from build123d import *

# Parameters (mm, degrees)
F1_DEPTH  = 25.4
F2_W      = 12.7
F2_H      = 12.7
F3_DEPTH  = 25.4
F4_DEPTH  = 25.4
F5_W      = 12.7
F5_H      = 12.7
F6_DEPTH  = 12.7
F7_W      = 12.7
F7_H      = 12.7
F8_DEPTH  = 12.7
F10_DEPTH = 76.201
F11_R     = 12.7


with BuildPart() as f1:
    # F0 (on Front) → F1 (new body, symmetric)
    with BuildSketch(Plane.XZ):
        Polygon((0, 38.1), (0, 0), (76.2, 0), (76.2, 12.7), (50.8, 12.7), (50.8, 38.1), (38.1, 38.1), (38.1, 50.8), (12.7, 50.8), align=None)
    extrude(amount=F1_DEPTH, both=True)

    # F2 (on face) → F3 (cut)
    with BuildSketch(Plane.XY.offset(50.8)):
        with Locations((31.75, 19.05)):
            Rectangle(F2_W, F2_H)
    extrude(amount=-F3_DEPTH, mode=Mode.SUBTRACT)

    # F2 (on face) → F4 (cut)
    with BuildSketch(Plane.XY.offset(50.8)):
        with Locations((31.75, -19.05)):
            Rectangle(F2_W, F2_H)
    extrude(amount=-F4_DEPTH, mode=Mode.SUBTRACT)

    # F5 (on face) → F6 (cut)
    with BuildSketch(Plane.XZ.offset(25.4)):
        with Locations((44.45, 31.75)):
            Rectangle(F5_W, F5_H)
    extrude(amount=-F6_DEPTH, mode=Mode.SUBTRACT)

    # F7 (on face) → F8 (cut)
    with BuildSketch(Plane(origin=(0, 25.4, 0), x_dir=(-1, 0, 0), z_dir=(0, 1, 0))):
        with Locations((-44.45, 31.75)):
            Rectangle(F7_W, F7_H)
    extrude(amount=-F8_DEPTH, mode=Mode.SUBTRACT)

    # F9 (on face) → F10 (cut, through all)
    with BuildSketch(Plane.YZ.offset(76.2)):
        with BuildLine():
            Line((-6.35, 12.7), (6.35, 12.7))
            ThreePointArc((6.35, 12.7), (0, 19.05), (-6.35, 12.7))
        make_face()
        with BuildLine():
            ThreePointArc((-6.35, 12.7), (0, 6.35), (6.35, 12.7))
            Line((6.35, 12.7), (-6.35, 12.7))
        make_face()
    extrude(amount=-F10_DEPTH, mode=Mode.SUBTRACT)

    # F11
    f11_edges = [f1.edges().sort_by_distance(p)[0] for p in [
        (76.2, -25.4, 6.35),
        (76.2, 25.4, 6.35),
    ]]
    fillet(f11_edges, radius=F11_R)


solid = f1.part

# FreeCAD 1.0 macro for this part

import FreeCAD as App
import Part
import Sketcher
from FreeCAD import Vector
Q = App.Units.Quantity


def edges_at(feature, points):
    """Names of the edges that pass closest to the given points."""
    edges = feature.Shape.Edges
    near = lambda p: min(range(len(edges)), key=lambda i: edges[i].distToShape(Part.Vertex(*p))[0])
    return sorted({f"Edge{near(p) + 1}" for p in points})


def add_polygon(sketch, points):
    """Adds a closed chain of lines whose ends are joined by coincident constraints."""
    first, n = sketch.GeometryCount, len(points)
    for a, b in zip(points, points[1:] + points[:1]):
        sketch.addGeometry(Part.LineSegment(App.Vector(*a, 0), App.Vector(*b, 0)), False)
    for i in range(n):
        sketch.addConstraint(Sketcher.Constraint("Coincident", first + i, 2, first + (i + 1) % n, 1))

doc = App.newDocument("Part")
body = doc.addObject("PartDesign::Body", "Body")

# Sketch on XZ plane
sketch1 = body.newObject("Sketcher::SketchObject", "Sketch")
sketch1.AttachmentSupport = (doc.getObject("XZ_Plane"), [""])
sketch1.MapMode = "FlatFace"
add_polygon(sketch1, [(0, 38), (0, 0), (76, 0), (76, 13), (51, 13), (51, 38), (38, 38), (38, 51), (13, 51)])  # lines 0-8
sketch1.addConstraint([
    Sketcher.Constraint("Vertical", 0),
    Sketcher.Constraint("Horizontal", 1),
    Sketcher.Constraint("Vertical", 2),
    Sketcher.Constraint("Horizontal", 3),
    Sketcher.Constraint("Vertical", 4),
    Sketcher.Constraint("Horizontal", 5),
    Sketcher.Constraint("Vertical", 6),
    Sketcher.Constraint("Horizontal", 7),
    Sketcher.Constraint("Coincident", 0, 2, -1, 1),
    Sketcher.Constraint("Horizontal", 5, 2, 8, 2),
    Sketcher.Constraint("Equal", 3, 7),
    Sketcher.Constraint("Equal", 5, 2),
    Sketcher.Constraint("Equal", 7, 4),
    Sketcher.Constraint("Equal", 2, 6),
    Sketcher.Constraint("DistanceX", 1, 1, 1, 2, Q("3 in")),
    Sketcher.Constraint("DistanceX", 3, 2, 3, 1, Q("1 in")),
    Sketcher.Constraint("DistanceX", 5, 2, 5, 1, Q("0.5 in")),
])
pad1 = body.newObject("PartDesign::Pad", "Pad")
pad1.Profile = sketch1
pad1.Length = Q("2 in")
pad1.Midplane = True

# Sketch on XY plane
sketch2 = body.newObject("Sketcher::SketchObject", "Sketch001")
sketch2.AttachmentSupport = (doc.getObject("XY_Plane"), [""])
sketch2.MapMode = "FlatFace"
sketch2.AttachmentOffset = App.Placement(Vector(0, 0, 2 * 25.4), App.Rotation())
add_polygon(sketch2, [(25, 25), (25, 13), (38, 13), (38, 25)])  # lines 0-3
sketch2.addConstraint([
    Sketcher.Constraint("Vertical", 0),
    Sketcher.Constraint("Horizontal", 1),
    Sketcher.Constraint("Vertical", 2),
    Sketcher.Constraint("Horizontal", 3),
    Sketcher.Constraint("Equal", 3, 0),
    Sketcher.Constraint("DistanceX", 1, 1, 1, 2, Q("0.5 in")),
    Sketcher.Constraint("DistanceX", -1, 1, 0, 2, Q("1 in")),
    Sketcher.Constraint("DistanceY", -1, 1, 2, 2, Q("1 in")),
])
pocket1 = body.newObject("PartDesign::Pocket", "Pocket")
pocket1.Profile = sketch2
pocket1.Length = Q("1 in")

# Sketch on XY plane
sketch3 = body.newObject("Sketcher::SketchObject", "Sketch002")
sketch3.AttachmentSupport = (doc.getObject("XY_Plane"), [""])
sketch3.MapMode = "FlatFace"
sketch3.AttachmentOffset = App.Placement(Vector(0, 0, 2 * 25.4), App.Rotation())
add_polygon(sketch3, [(25, -13), (25, -25), (38, -25), (38, -13)])  # lines 0-3
sketch3.addConstraint([
    Sketcher.Constraint("Vertical", 0),
    Sketcher.Constraint("Horizontal", 1),
    Sketcher.Constraint("Vertical", 2),
    Sketcher.Constraint("Horizontal", 3),
    Sketcher.Constraint("Equal", 3, 0),
    Sketcher.Constraint("DistanceX", 1, 1, 1, 2, Q("0.5 in")),
    Sketcher.Constraint("DistanceX", -1, 1, 0, 2, Q("1 in")),
    Sketcher.Constraint("DistanceY", 0, 2, -1, 1, Q("1 in")),
])
pocket2 = body.newObject("PartDesign::Pocket", "Pocket001")
pocket2.Profile = sketch3
pocket2.Length = Q("1 in")

# Sketch on XZ plane
sketch4 = body.newObject("Sketcher::SketchObject", "Sketch003")
sketch4.AttachmentSupport = (doc.getObject("XZ_Plane"), [""])
sketch4.MapMode = "FlatFace"
sketch4.AttachmentOffset = App.Placement(Vector(0, 0, 1 * 25.4), App.Rotation())
add_polygon(sketch4, [(38, 38), (38, 25), (51, 25), (51, 38)])  # lines 0-3
sketch4.addConstraint([
    Sketcher.Constraint("Vertical", 0),
    Sketcher.Constraint("Horizontal", 1),
    Sketcher.Constraint("Vertical", 2),
    Sketcher.Constraint("Horizontal", 3),
    Sketcher.Constraint("Equal", 3, 0),
    Sketcher.Constraint("DistanceX", 1, 1, 1, 2, Q("0.5 in")),
    Sketcher.Constraint("DistanceY", -1, 1, 0, 2, Q("1 in")),
    Sketcher.Constraint("DistanceX", -1, 1, 1, 2, Q("2 in")),
])
pocket3 = body.newObject("PartDesign::Pocket", "Pocket002")
pocket3.Profile = sketch4
pocket3.Length = Q("0.5 in")

# Sketch on XZ plane
sketch5 = body.newObject("Sketcher::SketchObject", "Sketch004")
sketch5.AttachmentSupport = (doc.getObject("XZ_Plane"), [""])
sketch5.MapMode = "FlatFace"
sketch5.AttachmentOffset = App.Placement(Vector(0, 0, -1 * 25.4), App.Rotation())
add_polygon(sketch5, [(51, 38), (51, 25), (38, 25), (38, 38)])  # lines 0-3
sketch5.addConstraint([
    Sketcher.Constraint("Vertical", 0),
    Sketcher.Constraint("Horizontal", 1),
    Sketcher.Constraint("Vertical", 2),
    Sketcher.Constraint("Horizontal", 3),
    Sketcher.Constraint("Equal", 3, 0),
    Sketcher.Constraint("DistanceX", 1, 2, 1, 1, Q("0.5 in")),
    Sketcher.Constraint("DistanceX", -1, 1, 0, 2, Q("2 in")),
    Sketcher.Constraint("DistanceY", -1, 1, 0, 2, Q("1 in")),
])
pocket4 = body.newObject("PartDesign::Pocket", "Pocket003")
pocket4.Profile = sketch5
pocket4.Length = Q("0.5 in")
pocket4.Reversed = True

# Sketch on YZ plane
sketch6 = body.newObject("Sketcher::SketchObject", "Sketch005")
sketch6.AttachmentSupport = (doc.getObject("YZ_Plane"), [""])
sketch6.MapMode = "FlatFace"
sketch6.AttachmentOffset = App.Placement(Vector(0, 0, 3 * 25.4), App.Rotation())
sketch6.addGeometry(Part.Circle(Vector(0, 13, 0), Vector(0, 0, 1), 6), False)
sketch6.addConstraint([
    Sketcher.Constraint("PointOnObject", 0, 3, -2),
    Sketcher.Constraint("Diameter", 0, Q("0.5 in")),
    Sketcher.Constraint("DistanceY", -1, 1, 0, 3, Q("0.5 in")),
])
pocket5 = body.newObject("PartDesign::Pocket", "Pocket004")
pocket5.Profile = sketch6
pocket5.Type = "ThroughAll"
doc.recompute()

fillet = body.newObject("PartDesign::Fillet", "Fillet")
fillet.Base = (pocket5, edges_at(pocket5, [(76.2, -25.4, 6.35), (76.2, 25.4, 6.35)]))
fillet.Radius = Q("0.5 in")

doc.recompute()
